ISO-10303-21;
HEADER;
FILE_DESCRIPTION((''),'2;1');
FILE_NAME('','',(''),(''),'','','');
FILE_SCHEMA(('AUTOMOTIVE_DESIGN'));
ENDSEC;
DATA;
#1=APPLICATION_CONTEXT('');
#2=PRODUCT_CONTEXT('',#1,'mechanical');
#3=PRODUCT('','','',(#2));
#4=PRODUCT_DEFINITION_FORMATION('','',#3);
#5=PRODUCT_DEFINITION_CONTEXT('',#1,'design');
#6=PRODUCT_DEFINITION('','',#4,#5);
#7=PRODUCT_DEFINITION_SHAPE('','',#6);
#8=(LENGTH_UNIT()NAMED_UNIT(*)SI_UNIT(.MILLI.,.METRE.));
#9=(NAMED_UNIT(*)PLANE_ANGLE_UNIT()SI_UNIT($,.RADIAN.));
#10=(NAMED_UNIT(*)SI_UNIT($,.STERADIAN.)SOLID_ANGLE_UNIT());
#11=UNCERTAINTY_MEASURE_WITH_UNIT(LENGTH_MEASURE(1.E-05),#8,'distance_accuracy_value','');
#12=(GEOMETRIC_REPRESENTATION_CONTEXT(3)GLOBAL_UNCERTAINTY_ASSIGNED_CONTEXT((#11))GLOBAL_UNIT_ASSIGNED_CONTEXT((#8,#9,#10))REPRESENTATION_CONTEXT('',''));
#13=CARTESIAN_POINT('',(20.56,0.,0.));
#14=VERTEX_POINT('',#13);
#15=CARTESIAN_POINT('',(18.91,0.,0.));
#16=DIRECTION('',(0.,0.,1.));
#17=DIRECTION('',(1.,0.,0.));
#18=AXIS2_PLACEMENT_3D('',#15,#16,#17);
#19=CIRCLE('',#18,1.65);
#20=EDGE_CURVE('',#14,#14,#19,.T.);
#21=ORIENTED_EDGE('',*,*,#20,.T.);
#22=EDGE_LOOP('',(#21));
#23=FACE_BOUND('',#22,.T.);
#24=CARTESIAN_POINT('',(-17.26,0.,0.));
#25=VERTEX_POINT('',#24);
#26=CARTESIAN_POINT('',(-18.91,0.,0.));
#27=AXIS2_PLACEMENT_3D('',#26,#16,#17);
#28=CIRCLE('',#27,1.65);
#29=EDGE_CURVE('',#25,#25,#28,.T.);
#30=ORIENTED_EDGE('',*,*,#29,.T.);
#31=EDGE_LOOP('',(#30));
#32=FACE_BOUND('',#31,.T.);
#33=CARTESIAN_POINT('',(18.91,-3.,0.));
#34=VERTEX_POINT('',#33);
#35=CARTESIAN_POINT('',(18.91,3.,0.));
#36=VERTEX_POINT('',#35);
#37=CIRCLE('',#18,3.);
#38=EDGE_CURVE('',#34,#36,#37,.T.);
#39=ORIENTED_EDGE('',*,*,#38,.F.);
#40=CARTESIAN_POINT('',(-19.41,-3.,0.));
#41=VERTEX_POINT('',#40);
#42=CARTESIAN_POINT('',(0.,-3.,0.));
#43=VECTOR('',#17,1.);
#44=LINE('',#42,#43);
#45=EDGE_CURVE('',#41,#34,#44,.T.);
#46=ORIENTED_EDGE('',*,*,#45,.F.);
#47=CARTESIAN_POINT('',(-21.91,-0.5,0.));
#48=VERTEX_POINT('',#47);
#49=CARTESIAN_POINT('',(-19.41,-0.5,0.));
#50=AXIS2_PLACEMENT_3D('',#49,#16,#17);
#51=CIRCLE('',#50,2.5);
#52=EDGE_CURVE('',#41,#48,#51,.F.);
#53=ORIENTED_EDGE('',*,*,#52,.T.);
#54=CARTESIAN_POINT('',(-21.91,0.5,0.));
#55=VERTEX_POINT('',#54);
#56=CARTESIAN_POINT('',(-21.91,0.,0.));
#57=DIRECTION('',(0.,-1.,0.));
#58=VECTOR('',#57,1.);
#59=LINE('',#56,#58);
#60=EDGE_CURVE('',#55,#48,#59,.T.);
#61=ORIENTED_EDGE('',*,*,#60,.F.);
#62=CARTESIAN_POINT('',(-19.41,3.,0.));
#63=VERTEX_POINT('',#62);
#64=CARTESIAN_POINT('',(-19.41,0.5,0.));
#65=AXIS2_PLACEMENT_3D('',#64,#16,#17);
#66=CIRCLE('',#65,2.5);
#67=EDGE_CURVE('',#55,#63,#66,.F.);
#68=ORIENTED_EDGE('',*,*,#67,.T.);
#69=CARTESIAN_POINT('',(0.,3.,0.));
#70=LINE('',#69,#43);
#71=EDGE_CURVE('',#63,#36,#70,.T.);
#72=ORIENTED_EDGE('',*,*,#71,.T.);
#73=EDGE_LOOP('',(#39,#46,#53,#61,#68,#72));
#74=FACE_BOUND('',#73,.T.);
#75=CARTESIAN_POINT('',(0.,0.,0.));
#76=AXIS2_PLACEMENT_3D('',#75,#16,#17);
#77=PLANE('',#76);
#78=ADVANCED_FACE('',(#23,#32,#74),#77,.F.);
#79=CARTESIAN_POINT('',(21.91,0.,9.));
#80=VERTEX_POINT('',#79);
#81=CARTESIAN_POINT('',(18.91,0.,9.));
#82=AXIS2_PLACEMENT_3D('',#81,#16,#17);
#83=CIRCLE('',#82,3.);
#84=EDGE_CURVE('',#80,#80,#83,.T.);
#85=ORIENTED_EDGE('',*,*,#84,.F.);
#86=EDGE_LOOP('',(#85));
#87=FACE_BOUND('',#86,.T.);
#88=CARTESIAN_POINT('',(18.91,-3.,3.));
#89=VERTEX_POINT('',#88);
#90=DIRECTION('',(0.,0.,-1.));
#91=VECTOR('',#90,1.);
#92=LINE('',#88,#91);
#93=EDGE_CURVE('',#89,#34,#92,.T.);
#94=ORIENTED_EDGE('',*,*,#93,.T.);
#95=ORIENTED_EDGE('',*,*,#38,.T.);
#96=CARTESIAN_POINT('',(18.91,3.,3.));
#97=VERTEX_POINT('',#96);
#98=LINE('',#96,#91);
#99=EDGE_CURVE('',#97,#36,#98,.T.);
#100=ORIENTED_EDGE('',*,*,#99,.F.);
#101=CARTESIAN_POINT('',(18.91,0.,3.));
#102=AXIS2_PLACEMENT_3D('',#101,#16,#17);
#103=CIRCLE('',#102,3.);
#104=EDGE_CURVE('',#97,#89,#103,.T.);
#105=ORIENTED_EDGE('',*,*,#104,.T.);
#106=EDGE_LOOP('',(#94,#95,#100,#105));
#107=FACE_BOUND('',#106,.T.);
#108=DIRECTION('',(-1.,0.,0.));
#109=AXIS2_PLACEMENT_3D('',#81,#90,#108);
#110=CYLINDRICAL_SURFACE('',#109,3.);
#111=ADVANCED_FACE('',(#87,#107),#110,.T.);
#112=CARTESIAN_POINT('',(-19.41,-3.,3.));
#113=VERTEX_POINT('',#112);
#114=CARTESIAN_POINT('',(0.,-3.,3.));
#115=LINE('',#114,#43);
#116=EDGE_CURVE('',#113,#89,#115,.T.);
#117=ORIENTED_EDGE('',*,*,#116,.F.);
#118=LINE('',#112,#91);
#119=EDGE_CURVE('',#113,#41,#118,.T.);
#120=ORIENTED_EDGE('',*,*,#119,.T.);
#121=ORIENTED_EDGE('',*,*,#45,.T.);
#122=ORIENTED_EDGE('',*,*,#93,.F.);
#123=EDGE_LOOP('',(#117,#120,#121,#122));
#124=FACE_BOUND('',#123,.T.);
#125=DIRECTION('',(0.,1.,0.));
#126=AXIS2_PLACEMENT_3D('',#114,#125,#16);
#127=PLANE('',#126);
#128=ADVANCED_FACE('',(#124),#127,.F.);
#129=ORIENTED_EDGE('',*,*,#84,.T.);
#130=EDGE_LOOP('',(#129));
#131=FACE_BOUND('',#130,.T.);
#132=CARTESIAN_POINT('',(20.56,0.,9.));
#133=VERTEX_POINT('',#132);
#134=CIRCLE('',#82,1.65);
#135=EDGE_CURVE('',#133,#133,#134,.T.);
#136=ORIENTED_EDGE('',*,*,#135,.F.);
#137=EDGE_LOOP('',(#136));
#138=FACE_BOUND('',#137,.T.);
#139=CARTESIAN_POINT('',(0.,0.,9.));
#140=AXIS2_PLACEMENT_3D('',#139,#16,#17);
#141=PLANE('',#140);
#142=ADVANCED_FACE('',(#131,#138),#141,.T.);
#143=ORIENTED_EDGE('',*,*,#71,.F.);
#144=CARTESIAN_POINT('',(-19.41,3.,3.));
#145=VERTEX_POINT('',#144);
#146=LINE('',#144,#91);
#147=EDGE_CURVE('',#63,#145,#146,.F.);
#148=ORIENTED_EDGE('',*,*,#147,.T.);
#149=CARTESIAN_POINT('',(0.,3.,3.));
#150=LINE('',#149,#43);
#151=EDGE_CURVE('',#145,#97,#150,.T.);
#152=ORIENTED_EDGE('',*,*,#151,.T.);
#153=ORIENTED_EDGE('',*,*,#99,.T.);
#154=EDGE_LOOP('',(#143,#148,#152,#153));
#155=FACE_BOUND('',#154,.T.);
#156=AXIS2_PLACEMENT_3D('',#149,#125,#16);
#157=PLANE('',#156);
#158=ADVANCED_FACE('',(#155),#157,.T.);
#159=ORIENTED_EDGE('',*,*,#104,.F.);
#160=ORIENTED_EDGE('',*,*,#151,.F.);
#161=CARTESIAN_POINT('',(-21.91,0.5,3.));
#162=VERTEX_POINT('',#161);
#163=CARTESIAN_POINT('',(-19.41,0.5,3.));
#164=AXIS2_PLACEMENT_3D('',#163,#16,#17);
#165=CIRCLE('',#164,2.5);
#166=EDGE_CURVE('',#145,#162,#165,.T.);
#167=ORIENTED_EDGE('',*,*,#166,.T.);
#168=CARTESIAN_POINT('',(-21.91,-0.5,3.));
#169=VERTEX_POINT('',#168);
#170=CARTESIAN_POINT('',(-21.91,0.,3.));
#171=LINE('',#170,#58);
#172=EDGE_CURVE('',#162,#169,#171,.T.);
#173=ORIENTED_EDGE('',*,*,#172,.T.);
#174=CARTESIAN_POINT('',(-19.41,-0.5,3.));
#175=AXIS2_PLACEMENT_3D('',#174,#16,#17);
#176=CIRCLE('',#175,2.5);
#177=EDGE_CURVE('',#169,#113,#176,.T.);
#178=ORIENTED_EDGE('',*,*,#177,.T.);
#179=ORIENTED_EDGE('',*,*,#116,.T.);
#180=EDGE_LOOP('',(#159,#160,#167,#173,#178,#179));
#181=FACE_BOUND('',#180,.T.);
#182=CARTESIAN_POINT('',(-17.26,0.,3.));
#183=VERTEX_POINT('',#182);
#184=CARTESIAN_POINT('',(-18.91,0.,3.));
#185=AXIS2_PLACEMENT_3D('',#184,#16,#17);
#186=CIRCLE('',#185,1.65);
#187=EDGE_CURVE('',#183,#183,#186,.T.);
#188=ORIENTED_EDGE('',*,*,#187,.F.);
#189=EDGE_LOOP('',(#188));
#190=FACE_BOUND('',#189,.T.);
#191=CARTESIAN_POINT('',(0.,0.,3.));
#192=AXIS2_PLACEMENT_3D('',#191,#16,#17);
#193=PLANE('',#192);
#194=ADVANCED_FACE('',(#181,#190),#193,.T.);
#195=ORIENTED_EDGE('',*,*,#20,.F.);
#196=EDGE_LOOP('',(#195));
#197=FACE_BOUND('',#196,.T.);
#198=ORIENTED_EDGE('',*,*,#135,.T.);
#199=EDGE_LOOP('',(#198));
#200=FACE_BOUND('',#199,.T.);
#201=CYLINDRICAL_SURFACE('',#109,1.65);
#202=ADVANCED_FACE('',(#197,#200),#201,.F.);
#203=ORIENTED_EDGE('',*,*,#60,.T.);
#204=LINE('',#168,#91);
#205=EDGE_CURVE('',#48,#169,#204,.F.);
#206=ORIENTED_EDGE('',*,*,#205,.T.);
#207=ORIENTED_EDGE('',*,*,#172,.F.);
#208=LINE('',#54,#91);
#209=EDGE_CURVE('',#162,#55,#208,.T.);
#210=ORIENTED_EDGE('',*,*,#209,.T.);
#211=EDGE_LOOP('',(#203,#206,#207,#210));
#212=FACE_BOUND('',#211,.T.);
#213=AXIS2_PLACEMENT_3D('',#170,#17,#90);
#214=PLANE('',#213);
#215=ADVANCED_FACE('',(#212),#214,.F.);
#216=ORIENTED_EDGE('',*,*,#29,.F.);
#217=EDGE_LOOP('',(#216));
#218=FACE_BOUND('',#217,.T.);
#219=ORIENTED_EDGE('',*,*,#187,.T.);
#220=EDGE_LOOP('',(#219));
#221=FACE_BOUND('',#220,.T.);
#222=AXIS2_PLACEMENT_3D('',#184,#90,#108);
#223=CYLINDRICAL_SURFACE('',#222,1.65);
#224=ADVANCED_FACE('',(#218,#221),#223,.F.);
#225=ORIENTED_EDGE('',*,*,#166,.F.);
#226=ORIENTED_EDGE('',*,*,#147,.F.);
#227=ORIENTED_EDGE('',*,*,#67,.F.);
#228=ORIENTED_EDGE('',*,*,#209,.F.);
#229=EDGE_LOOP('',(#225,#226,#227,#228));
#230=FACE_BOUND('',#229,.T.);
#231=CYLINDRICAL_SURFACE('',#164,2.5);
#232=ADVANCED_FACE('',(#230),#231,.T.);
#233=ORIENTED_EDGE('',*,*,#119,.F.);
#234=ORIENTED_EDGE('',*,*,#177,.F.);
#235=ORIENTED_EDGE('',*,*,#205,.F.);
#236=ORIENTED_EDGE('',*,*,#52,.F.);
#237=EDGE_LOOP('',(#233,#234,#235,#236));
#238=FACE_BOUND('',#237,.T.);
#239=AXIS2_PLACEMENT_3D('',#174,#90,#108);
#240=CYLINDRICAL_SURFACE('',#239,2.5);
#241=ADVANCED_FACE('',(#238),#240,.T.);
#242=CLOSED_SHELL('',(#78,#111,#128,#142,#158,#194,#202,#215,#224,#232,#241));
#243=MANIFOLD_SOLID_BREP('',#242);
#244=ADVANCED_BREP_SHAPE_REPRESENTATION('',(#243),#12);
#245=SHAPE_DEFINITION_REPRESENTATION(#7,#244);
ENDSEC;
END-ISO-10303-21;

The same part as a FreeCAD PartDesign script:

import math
import FreeCAD as App
import Part
import Sketcher

V = App.Vector
Q = App.Units.Quantity


def edges_at(feature, points):
    """Names of the edges that pass closest to the given points."""
    edges = feature.Shape.Edges
    near = lambda p: min(range(len(edges)), key=lambda i: edges[i].distToShape(Part.Vertex(*p))[0])
    return sorted({f"Edge{near(p) + 1}" for p in points})

doc = App.newDocument("Part")
params = doc.addObject("Spreadsheet::Sheet", "Params")
for row, (alias, value) in enumerate([
    ("sketch1_radius", "3 mm"),
    ("sketch1_diameter", "3.3 mm"),
    ("sketch1_width", "40.82 mm"),
    ("pad1_length", "3 mm"),
    ("sketch2_radius", "3 mm"),
    ("sketch2_radius2", "1.65 mm"),
    ("pad2_length", "9 mm"),
    ("fillet_radius", "2.5 mm"),
], start=1):
    params.set(f"A{row}", alias)
    params.set(f"B{row}", "=" + value)
    params.setAlias(f"B{row}", alias)

body = doc.addObject("PartDesign::Body", "Body")

# Sketch on XY plane
sketch1 = body.newObject("Sketcher::SketchObject", "Sketch")
sketch1.AttachmentSupport = (doc.getObject("XY_Plane"), [""])
sketch1.MapMode = "FlatFace"
sketch1.addGeometry(Part.LineSegment(V(-21.9, -3, 0), V(18.9, -3, 0)), False)
sketch1.addGeometry(Part.ArcOfCircle(Part.Circle(V(18.9, 0, 0), V(0, 0, 1), 3), math.radians(90), math.radians(270)), False)
sketch1.addGeometry(Part.LineSegment(V(18.9, 3, 0), V(-21.9, 3, 0)), False)
sketch1.addGeometry(Part.LineSegment(V(-21.9, 3, 0), V(-21.9, -3, 0)), False)
sketch1.addGeometry(Part.Circle(V(-18.9, 0, 0), V(0, 0, 1), 1.6), False)
sketch1.addConstraint(Sketcher.Constraint("Tangent", 0, 2, 1, 2))
sketch1.addConstraint(Sketcher.Constraint("Tangent", 1, 1, 2, 1))
sketch1.addConstraint(Sketcher.Constraint("Coincident", 2, 2, 3, 1))
sketch1.addConstraint(Sketcher.Constraint("Coincident", 3, 2, 0, 1))
sketch1.addConstraint(Sketcher.Constraint("Horizontal", 0))
sketch1.addConstraint(Sketcher.Constraint("Horizontal", 2))
sketch1.addConstraint(Sketcher.Constraint("Vertical", 3))
sketch1.addConstraint(Sketcher.Constraint("Symmetric", 1, 3, 4, 3, -1, 1))
sketch1.addConstraint(Sketcher.Constraint("PointOnObject", 1, 3, -1))
sketch1.addConstraint(Sketcher.Constraint("Radius", 1, Q("3 mm")))
sketch1.addConstraint(Sketcher.Constraint("Diameter", 4, Q("3.3 mm")))
sketch1.addConstraint(Sketcher.Constraint("DistanceX", 2, 2, 4, 3, Q("3 mm")))
sketch1.addConstraint(Sketcher.Constraint("DistanceX", 0, 1, 0, 2, Q("40.82 mm")))
sketch1.setExpression("Constraints[9]", "Params.sketch1_radius")
sketch1.setExpression("Constraints[10]", "Params.sketch1_diameter")
sketch1.setExpression("Constraints[12]", "Params.sketch1_width")
pad1 = body.newObject("PartDesign::Pad", "Pad")
pad1.Profile = sketch1
pad1.setExpression("Length", "Params.pad1_length")

# Sketch on XY plane
sketch2 = body.newObject("Sketcher::SketchObject", "Sketch001")
sketch2.AttachmentSupport = (doc.getObject("XY_Plane"), [""])
sketch2.MapMode = "FlatFace"
sketch2.addGeometry(Part.ArcOfCircle(Part.Circle(V(18.9, 0, 0), V(0, 0, 1), 3), math.radians(0), math.radians(90)), False)
sketch2.addGeometry(Part.ArcOfCircle(Part.Circle(V(18.9, 0, 0), V(0, 0, 1), 3), math.radians(90), math.radians(270)), False)
sketch2.addGeometry(Part.ArcOfCircle(Part.Circle(V(18.9, 0, 0), V(0, 0, 1), 3), math.radians(-90), math.radians(0)), False)
sketch2.addGeometry(Part.ArcOfCircle(Part.Circle(V(18.9, 0, 0), V(0, 0, 1), 1.6), math.radians(-90), math.radians(0)), False)
sketch2.addGeometry(Part.ArcOfCircle(Part.Circle(V(18.9, 0, 0), V(0, 0, 1), 1.6), math.radians(90), math.radians(270)), False)
sketch2.addGeometry(Part.ArcOfCircle(Part.Circle(V(18.9, 0, 0), V(0, 0, 1), 1.6), math.radians(0), math.radians(90)), False)
sketch2.addConstraint(Sketcher.Constraint("Tangent", 0, 2, 1, 1))
sketch2.addConstraint(Sketcher.Constraint("Tangent", 1, 2, 2, 1))
sketch2.addConstraint(Sketcher.Constraint("Tangent", 2, 2, 0, 1))
sketch2.addConstraint(Sketcher.Constraint("Tangent", 3, 1, 4, 2))
sketch2.addConstraint(Sketcher.Constraint("Tangent", 4, 1, 5, 2))
sketch2.addConstraint(Sketcher.Constraint("Tangent", 5, 1, 3, 2))
sketch2.addConstraint(Sketcher.Constraint("Coincident", 3, 3, 0, 3))
sketch2.addConstraint(Sketcher.Constraint("Symmetric", 0, 2, 1, 2, -1))
sketch2.addConstraint(Sketcher.Constraint("PointOnObject", 2, 2, -1))
sketch2.addConstraint(Sketcher.Constraint("PointOnObject", 5, 1, -1))
sketch2.addConstraint(Sketcher.Constraint("Vertical", 5, 3, 0, 2))
sketch2.addConstraint(Sketcher.Constraint("Vertical", 1, 2, 3, 1))
sketch2.addConstraint(Sketcher.Constraint("Vertical", 3, 1, 4, 1))
sketch2.addConstraint(Sketcher.Constraint("Radius", 0, Q("3 mm")))
sketch2.addConstraint(Sketcher.Constraint("Radius", 3, Q("1.65 mm")))
sketch2.addConstraint(Sketcher.Constraint("DistanceX", -1, 1, 0, 3, Q("18.91 mm")))
sketch2.setExpression("Constraints[13]", "Params.sketch2_radius")
sketch2.setExpression("Constraints[14]", "Params.sketch2_radius2")
pad2 = body.newObject("PartDesign::Pad", "Pad001")
pad2.Profile = sketch2
pad2.setExpression("Length", "Params.pad2_length")
doc.recompute()

fillet = body.newObject("PartDesign::Fillet", "Fillet")
fillet.Base = (pad2, edges_at(pad2, [(-21.91, -3, 1.5), (-21.91, 3, 1.5)]))
fillet.setExpression("Radius", "Params.fillet_radius")

doc.recompute()
